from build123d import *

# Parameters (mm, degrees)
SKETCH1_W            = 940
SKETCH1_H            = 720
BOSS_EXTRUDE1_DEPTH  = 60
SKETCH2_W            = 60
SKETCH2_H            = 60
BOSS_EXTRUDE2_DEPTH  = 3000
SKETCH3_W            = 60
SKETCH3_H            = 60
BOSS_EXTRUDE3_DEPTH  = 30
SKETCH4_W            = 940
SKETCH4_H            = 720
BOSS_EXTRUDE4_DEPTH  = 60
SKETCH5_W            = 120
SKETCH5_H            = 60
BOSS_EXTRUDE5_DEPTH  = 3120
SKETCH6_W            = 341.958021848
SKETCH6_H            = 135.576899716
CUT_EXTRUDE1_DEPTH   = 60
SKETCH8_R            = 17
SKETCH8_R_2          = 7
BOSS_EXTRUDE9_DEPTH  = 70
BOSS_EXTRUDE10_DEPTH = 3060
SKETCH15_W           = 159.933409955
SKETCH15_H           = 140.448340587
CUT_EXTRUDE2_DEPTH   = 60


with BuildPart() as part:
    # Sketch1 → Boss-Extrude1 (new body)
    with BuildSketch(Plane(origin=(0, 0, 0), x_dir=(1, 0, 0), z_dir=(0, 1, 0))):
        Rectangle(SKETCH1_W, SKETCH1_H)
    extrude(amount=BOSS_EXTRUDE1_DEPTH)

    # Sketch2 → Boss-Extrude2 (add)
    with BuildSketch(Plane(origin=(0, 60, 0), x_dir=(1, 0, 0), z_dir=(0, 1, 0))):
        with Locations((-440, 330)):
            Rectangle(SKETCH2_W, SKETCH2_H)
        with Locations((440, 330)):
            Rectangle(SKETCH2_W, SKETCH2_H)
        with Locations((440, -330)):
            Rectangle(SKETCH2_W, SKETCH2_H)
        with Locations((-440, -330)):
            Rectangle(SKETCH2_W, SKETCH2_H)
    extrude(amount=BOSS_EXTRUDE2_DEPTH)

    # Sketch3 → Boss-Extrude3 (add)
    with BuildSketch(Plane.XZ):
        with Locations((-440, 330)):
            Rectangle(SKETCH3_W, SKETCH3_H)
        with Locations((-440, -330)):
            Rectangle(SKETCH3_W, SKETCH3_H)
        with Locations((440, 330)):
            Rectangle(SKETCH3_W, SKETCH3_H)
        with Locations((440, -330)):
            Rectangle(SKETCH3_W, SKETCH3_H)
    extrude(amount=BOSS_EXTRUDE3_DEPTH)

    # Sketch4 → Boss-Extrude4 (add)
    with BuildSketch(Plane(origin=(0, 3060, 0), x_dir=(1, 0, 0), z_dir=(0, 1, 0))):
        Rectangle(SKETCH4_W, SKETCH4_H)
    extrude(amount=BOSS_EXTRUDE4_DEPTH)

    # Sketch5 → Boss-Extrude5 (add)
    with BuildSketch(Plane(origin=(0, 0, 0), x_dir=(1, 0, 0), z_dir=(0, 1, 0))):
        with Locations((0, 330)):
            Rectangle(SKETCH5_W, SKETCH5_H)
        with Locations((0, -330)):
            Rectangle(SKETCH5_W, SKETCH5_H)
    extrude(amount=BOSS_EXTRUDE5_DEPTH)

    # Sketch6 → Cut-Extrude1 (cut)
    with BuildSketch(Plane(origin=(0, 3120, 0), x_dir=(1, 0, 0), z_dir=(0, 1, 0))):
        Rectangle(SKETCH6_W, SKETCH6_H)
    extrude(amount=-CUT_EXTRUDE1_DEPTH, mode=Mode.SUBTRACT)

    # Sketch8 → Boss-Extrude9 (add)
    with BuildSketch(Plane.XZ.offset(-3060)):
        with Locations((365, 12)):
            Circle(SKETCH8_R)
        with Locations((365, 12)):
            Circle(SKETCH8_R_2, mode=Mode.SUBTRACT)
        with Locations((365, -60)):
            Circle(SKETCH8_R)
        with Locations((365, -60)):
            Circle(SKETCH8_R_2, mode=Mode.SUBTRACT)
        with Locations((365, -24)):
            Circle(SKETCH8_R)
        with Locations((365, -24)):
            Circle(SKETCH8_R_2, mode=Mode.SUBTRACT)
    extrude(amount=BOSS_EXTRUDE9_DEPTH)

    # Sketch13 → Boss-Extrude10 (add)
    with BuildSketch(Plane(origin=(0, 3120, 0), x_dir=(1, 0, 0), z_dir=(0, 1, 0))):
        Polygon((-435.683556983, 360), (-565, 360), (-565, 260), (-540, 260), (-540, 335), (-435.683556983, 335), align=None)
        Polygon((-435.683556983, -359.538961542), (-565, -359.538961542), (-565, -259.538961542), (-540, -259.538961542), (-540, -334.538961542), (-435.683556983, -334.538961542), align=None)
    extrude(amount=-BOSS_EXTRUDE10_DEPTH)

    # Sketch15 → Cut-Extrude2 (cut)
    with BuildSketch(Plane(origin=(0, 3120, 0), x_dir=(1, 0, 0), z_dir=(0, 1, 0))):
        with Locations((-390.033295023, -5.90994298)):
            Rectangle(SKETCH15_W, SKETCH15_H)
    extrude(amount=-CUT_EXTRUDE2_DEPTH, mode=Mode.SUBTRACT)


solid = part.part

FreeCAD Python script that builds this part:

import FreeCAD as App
import Part
import Sketcher
from FreeCAD import Vector

doc = App.newDocument("Part")
body = doc.addObject("PartDesign::Body", "Body")

sketch1 = doc.addObject("Sketcher::SketchObject", "Sketch")
body.addObject(sketch1)
sketch1.AttachmentSupport = (doc.XZ_Plane, [""])
sketch1.MapMode = "FlatFace"
sketch1.addGeometry([
    Part.LineSegment(Vector(-470, -360, 0), Vector(-470, 360, 0)),
    Part.LineSegment(Vector(-470, 360, 0), Vector(470, 360, 0)),
    Part.LineSegment(Vector(470, 360, 0), Vector(470, -360, 0)),
    Part.LineSegment(Vector(470, -360, 0), Vector(-470, -360, 0)),
], False)
sketch1.addConstraint([
    Sketcher.Constraint("Coincident", 0, 2, 1, 1),
    Sketcher.Constraint("Coincident", 1, 2, 2, 1),
    Sketcher.Constraint("Coincident", 2, 2, 3, 1),
    Sketcher.Constraint("Coincident", 3, 2, 0, 1),
    Sketcher.Constraint("Vertical", 0),
    Sketcher.Constraint("Horizontal", 1),
    Sketcher.Constraint("Vertical", 2),
    Sketcher.Constraint("Horizontal", 3),
    Sketcher.Constraint("Symmetric", 0, 2, 2, 2, -1, 1),
    Sketcher.Constraint("DistanceX", 1, 1, 1, 2, 940.0),
    Sketcher.Constraint("DistanceY", 0, 1, 0, 2, 720.0),
])
pad1 = doc.addObject("PartDesign::Pad", "Pad")
body.addObject(pad1)
pad1.Profile = sketch1
pad1.Length = 60
pad1.Reversed = True

sketch2 = doc.addObject("Sketcher::SketchObject", "Sketch001")
body.addObject(sketch2)
sketch2.AttachmentSupport = (doc.XZ_Plane, [""])
sketch2.MapMode = "FlatFace"
sketch2.AttachmentOffset = App.Placement(Vector(0, 0, -60), App.Rotation())
sketch2.addGeometry([
    Part.LineSegment(Vector(-470, -360, 0), Vector(-470, -300, 0)),
    Part.LineSegment(Vector(-470, -300, 0), Vector(-410, -300, 0)),
    Part.LineSegment(Vector(-410, -300, 0), Vector(-410, -360, 0)),
    Part.LineSegment(Vector(-410, -360, 0), Vector(-470, -360, 0)),
    Part.LineSegment(Vector(410, -360, 0), Vector(410, -300, 0)),
    Part.LineSegment(Vector(410, -300, 0), Vector(470, -300, 0)),
    Part.LineSegment(Vector(470, -300, 0), Vector(470, -360, 0)),
    Part.LineSegment(Vector(470, -360, 0), Vector(410, -360, 0)),
    Part.LineSegment(Vector(410, 300, 0), Vector(410, 360, 0)),
    Part.LineSegment(Vector(410, 360, 0), Vector(470, 360, 0)),
    Part.LineSegment(Vector(470, 360, 0), Vector(470, 300, 0)),
    Part.LineSegment(Vector(470, 300, 0), Vector(410, 300, 0)),
    Part.LineSegment(Vector(-470, 300, 0), Vector(-470, 360, 0)),
    Part.LineSegment(Vector(-470, 360, 0), Vector(-410, 360, 0)),
    Part.LineSegment(Vector(-410, 360, 0), Vector(-410, 300, 0)),
    Part.LineSegment(Vector(-410, 300, 0), Vector(-470, 300, 0)),
], False)
sketch2.addConstraint([
    Sketcher.Constraint("Coincident", 0, 2, 1, 1),
    Sketcher.Constraint("Coincident", 1, 2, 2, 1),
    Sketcher.Constraint("Coincident", 2, 2, 3, 1),
    Sketcher.Constraint("Coincident", 3, 2, 0, 1),
    Sketcher.Constraint("Coincident", 4, 2, 5, 1),
    Sketcher.Constraint("Coincident", 5, 2, 6, 1),
    Sketcher.Constraint("Coincident", 6, 2, 7, 1),
    Sketcher.Constraint("Coincident", 7, 2, 4, 1),
    Sketcher.Constraint("Coincident", 8, 2, 9, 1),
    Sketcher.Constraint("Coincident", 9, 2, 10, 1),
    Sketcher.Constraint("Coincident", 10, 2, 11, 1),
    Sketcher.Constraint("Coincident", 11, 2, 8, 1),
    Sketcher.Constraint("Coincident", 12, 2, 13, 1),
    Sketcher.Constraint("Coincident", 13, 2, 14, 1),
    Sketcher.Constraint("Coincident", 14, 2, 15, 1),
    Sketcher.Constraint("Coincident", 15, 2, 12, 1),
    Sketcher.Constraint("Vertical", 0),
    Sketcher.Constraint("Horizontal", 1),
    Sketcher.Constraint("Vertical", 2),
    Sketcher.Constraint("Horizontal", 3),
    Sketcher.Constraint("Vertical", 4),
    Sketcher.Constraint("Horizontal", 5),
    Sketcher.Constraint("Vertical", 6),
    Sketcher.Constraint("Horizontal", 7),
    Sketcher.Constraint("Vertical", 8),
    Sketcher.Constraint("Horizontal", 9),
    Sketcher.Constraint("Vertical", 10),
    Sketcher.Constraint("Horizontal", 11),
    Sketcher.Constraint("Vertical", 12),
    Sketcher.Constraint("Horizontal", 13),
    Sketcher.Constraint("Vertical", 14),
    Sketcher.Constraint("Horizontal", 15),
    Sketcher.Constraint("Symmetric", 2, 2, 8, 2, -1, 1),
    Sketcher.Constraint("Symmetric", 0, 2, 10, 2, -1, 1),
    Sketcher.Constraint("Symmetric", 6, 2, 12, 2, -1, 1),
    Sketcher.Constraint("Symmetric", 4, 2, 14, 2, -1, 1),
    Sketcher.Constraint("Symmetric", 1, 2, 4, 2, -2),
    Sketcher.Constraint("Symmetric", 3, 2, 6, 2, -2),
    Sketcher.Constraint("Equal", 15, 0),
    Sketcher.Constraint("DistanceX", 1, 1, 1, 2, 60.0),
    Sketcher.Constraint("DistanceX", 0, 2, -1, 1, 470.0),
    Sketcher.Constraint("DistanceY", 0, 2, -1, 1, 300.0),
])
pad2 = doc.addObject("PartDesign::Pad", "Pad001")
body.addObject(pad2)
pad2.Profile = sketch2
pad2.Length = 3000
pad2.Reversed = True

sketch3 = doc.addObject("Sketcher::SketchObject", "Sketch002")
body.addObject(sketch3)
sketch3.AttachmentSupport = (doc.XZ_Plane, [""])
sketch3.MapMode = "FlatFace"
sketch3.addGeometry([
    Part.LineSegment(Vector(-470, 360, 0), Vector(-470, 300, 0)),
    Part.LineSegment(Vector(-470, 300, 0), Vector(-410, 300, 0)),
    Part.LineSegment(Vector(-410, 300, 0), Vector(-410, 360, 0)),
    Part.LineSegment(Vector(-410, 360, 0), Vector(-470, 360, 0)),
    Part.LineSegment(Vector(-470, -300, 0), Vector(-470, -360, 0)),
    Part.LineSegment(Vector(-470, -360, 0), Vector(-410, -360, 0)),
    Part.LineSegment(Vector(-410, -360, 0), Vector(-410, -300, 0)),
    Part.LineSegment(Vector(-410, -300, 0), Vector(-470, -300, 0)),
    Part.LineSegment(Vector(410, 360, 0), Vector(410, 300, 0)),
    Part.LineSegment(Vector(410, 300, 0), Vector(470, 300, 0)),
    Part.LineSegment(Vector(470, 300, 0), Vector(470, 360, 0)),
    Part.LineSegment(Vector(470, 360, 0), Vector(410, 360, 0)),
    Part.LineSegment(Vector(410, -300, 0), Vector(410, -360, 0)),
    Part.LineSegment(Vector(410, -360, 0), Vector(470, -360, 0)),
    Part.LineSegment(Vector(470, -360, 0), Vector(470, -300, 0)),
    Part.LineSegment(Vector(470, -300, 0), Vector(410, -300, 0)),
], False)
sketch3.addConstraint([
    Sketcher.Constraint("Coincident", 0, 2, 1, 1),
    Sketcher.Constraint("Coincident", 1, 2, 2, 1),
    Sketcher.Constraint("Coincident", 2, 2, 3, 1),
    Sketcher.Constraint("Coincident", 3, 2, 0, 1),
    Sketcher.Constraint("Coincident", 4, 2, 5, 1),
    Sketcher.Constraint("Coincident", 5, 2, 6, 1),
    Sketcher.Constraint("Coincident", 6, 2, 7, 1),
    Sketcher.Constraint("Coincident", 7, 2, 4, 1),
    Sketcher.Constraint("Coincident", 8, 2, 9, 1),
    Sketcher.Constraint("Coincident", 9, 2, 10, 1),
    Sketcher.Constraint("Coincident", 10, 2, 11, 1),
    Sketcher.Constraint("Coincident", 11, 2, 8, 1),
    Sketcher.Constraint("Coincident", 12, 2, 13, 1),
    Sketcher.Constraint("Coincident", 13, 2, 14, 1),
    Sketcher.Constraint("Coincident", 14, 2, 15, 1),
    Sketcher.Constraint("Coincident", 15, 2, 12, 1),
    Sketcher.Constraint("Vertical", 0),
    Sketcher.Constraint("Horizontal", 1),
    Sketcher.Constraint("Vertical", 2),
    Sketcher.Constraint("Horizontal", 3),
    Sketcher.Constraint("Vertical", 4),
    Sketcher.Constraint("Horizontal", 5),
    Sketcher.Constraint("Vertical", 6),
    Sketcher.Constraint("Horizontal", 7),
    Sketcher.Constraint("Vertical", 8),
    Sketcher.Constraint("Horizontal", 9),
    Sketcher.Constraint("Vertical", 10),
    Sketcher.Constraint("Horizontal", 11),
    Sketcher.Constraint("Vertical", 12),
    Sketcher.Constraint("Horizontal", 13),
    Sketcher.Constraint("Vertical", 14),
    Sketcher.Constraint("Horizontal", 15),
    Sketcher.Constraint("Symmetric", 6, 2, 8, 2, -1, 1),
    Sketcher.Constraint("Symmetric", 4, 2, 10, 2, -1, 1),
    Sketcher.Constraint("Symmetric", 2, 2, 12, 2, -1, 1),
    Sketcher.Constraint("Symmetric", 0, 2, 14, 2, -1, 1),
    Sketcher.Constraint("Symmetric", 1, 2, 8, 2, -2),
    Sketcher.Constraint("Symmetric", 3, 2, 10, 2, -2),
    Sketcher.Constraint("Equal", 15, 0),
    Sketcher.Constraint("DistanceX", 1, 1, 1, 2, 60.0),
    Sketcher.Constraint("DistanceX", 0, 2, -1, 1, 470.0),
    Sketcher.Constraint("DistanceY", -1, 1, 0, 2, 300.0),
])
pad3 = doc.addObject("PartDesign::Pad", "Pad002")
body.addObject(pad3)
pad3.Profile = sketch3
pad3.Length = 30

sketch4 = doc.addObject("Sketcher::SketchObject", "Sketch003")
body.addObject(sketch4)
sketch4.AttachmentSupport = (doc.XZ_Plane, [""])
sketch4.MapMode = "FlatFace"
sketch4.AttachmentOffset = App.Placement(Vector(0, 0, -3060), App.Rotation())
sketch4.addGeometry([
    Part.LineSegment(Vector(-470, -360, 0), Vector(-470, 360, 0)),
    Part.LineSegment(Vector(-470, 360, 0), Vector(470, 360, 0)),
    Part.LineSegment(Vector(470, 360, 0), Vector(470, -360, 0)),
    Part.LineSegment(Vector(470, -360, 0), Vector(-470, -360, 0)),
], False)
sketch4.addConstraint([
    Sketcher.Constraint("Coincident", 0, 2, 1, 1),
    Sketcher.Constraint("Coincident", 1, 2, 2, 1),
    Sketcher.Constraint("Coincident", 2, 2, 3, 1),
    Sketcher.Constraint("Coincident", 3, 2, 0, 1),
    Sketcher.Constraint("Vertical", 0),
    Sketcher.Constraint("Horizontal", 1),
    Sketcher.Constraint("Vertical", 2),
    Sketcher.Constraint("Horizontal", 3),
    Sketcher.Constraint("Symmetric", 0, 2, 2, 2, -1, 1),
    Sketcher.Constraint("DistanceX", 1, 1, 1, 2, 940.0),
    Sketcher.Constraint("DistanceY", 0, 1, 0, 2, 720.0),
])
pad4 = doc.addObject("PartDesign::Pad", "Pad003")
body.addObject(pad4)
pad4.Profile = sketch4
pad4.Length = 60
pad4.Reversed = True

sketch5 = doc.addObject("Sketcher::SketchObject", "Sketch004")
body.addObject(sketch5)
sketch5.AttachmentSupport = (doc.XZ_Plane, [""])
sketch5.MapMode = "FlatFace"
sketch5.addGeometry([
    Part.LineSegment(Vector(-60, -360, 0), Vector(-60, -300, 0)),
    Part.LineSegment(Vector(-60, -300, 0), Vector(60, -300, 0)),
    Part.LineSegment(Vector(60, -300, 0), Vector(60, -360, 0)),
    Part.LineSegment(Vector(60, -360, 0), Vector(-60, -360, 0)),
    Part.LineSegment(Vector(-60, 300, 0), Vector(-60, 360, 0)),
    Part.LineSegment(Vector(-60, 360, 0), Vector(60, 360, 0)),
    Part.LineSegment(Vector(60, 360, 0), Vector(60, 300, 0)),
    Part.LineSegment(Vector(60, 300, 0), Vector(-60, 300, 0)),
], False)
sketch5.addConstraint([
    Sketcher.Constraint("Coincident", 0, 2, 1, 1),
    Sketcher.Constraint("Coincident", 1, 2, 2, 1),
    Sketcher.Constraint("Coincident", 2, 2, 3, 1),
    Sketcher.Constraint("Coincident", 3, 2, 0, 1),
    Sketcher.Constraint("Coincident", 4, 2, 5, 1),
    Sketcher.Constraint("Coincident", 5, 2, 6, 1),
    Sketcher.Constraint("Coincident", 6, 2, 7, 1),
    Sketcher.Constraint("Coincident", 7, 2, 4, 1),
    Sketcher.Constraint("Vertical", 0),
    Sketcher.Constraint("Horizontal", 1),
    Sketcher.Constraint("Vertical", 2),
    Sketcher.Constraint("Horizontal", 3),
    Sketcher.Constraint("Vertical", 4),
    Sketcher.Constraint("Horizontal", 5),
    Sketcher.Constraint("Vertical", 6),
    Sketcher.Constraint("Horizontal", 7),
    Sketcher.Constraint("Symmetric", 2, 2, 4, 2, -1, 1),
    Sketcher.Constraint("Symmetric", 0, 2, 6, 2, -1, 1),
    Sketcher.Constraint("Vertical", 3, 2, 4, 2),
    Sketcher.Constraint("DistanceX", 1, 1, 1, 2, 120.0),
    Sketcher.Constraint("DistanceY", 0, 1, 0, 2, 60.0),
    Sketcher.Constraint("DistanceY", 0, 2, -1, 1, 300.0),
])
pad5 = doc.addObject("PartDesign::Pad", "Pad004")
body.addObject(pad5)
pad5.Profile = sketch5
pad5.Length = 3120
pad5.Reversed = True

sketch6 = doc.addObject("Sketcher::SketchObject", "Sketch005")
body.addObject(sketch6)
sketch6.AttachmentSupport = (doc.XZ_Plane, [""])
sketch6.MapMode = "FlatFace"
sketch6.AttachmentOffset = App.Placement(Vector(0, 0, -3120), App.Rotation())
sketch6.addGeometry([
    Part.LineSegment(Vector(-170.979011, -67.78845, 0), Vector(-170.979011, 67.78845, 0)),
    Part.LineSegment(Vector(-170.979011, 67.78845, 0), Vector(170.979011, 67.78845, 0)),
    Part.LineSegment(Vector(170.979011, 67.78845, 0), Vector(170.979011, -67.78845, 0)),
    Part.LineSegment(Vector(170.979011, -67.78845, 0), Vector(-170.979011, -67.78845, 0)),
], False)
sketch6.addConstraint([
    Sketcher.Constraint("Coincident", 0, 2, 1, 1),
    Sketcher.Constraint("Coincident", 1, 2, 2, 1),
    Sketcher.Constraint("Coincident", 2, 2, 3, 1),
    Sketcher.Constraint("Coincident", 3, 2, 0, 1),
    Sketcher.Constraint("Vertical", 0),
    Sketcher.Constraint("Horizontal", 1),
    Sketcher.Constraint("Vertical", 2),
    Sketcher.Constraint("Horizontal", 3),
    Sketcher.Constraint("Symmetric", 0, 2, 2, 2, -1, 1),
    Sketcher.Constraint("DistanceY", 0, 1, 0, 2, 135.5769),
    Sketcher.Constraint("DistanceX", 1, 1, 1, 2, 341.958022),
])
pocket1 = doc.addObject("PartDesign::Pocket", "Pocket")
body.addObject(pocket1)
pocket1.Profile = sketch6
pocket1.Length = 60
pocket1.Reversed = True

sketch7 = doc.addObject("Sketcher::SketchObject", "Sketch006")
body.addObject(sketch7)
sketch7.AttachmentSupport = (doc.XZ_Plane, [""])
sketch7.MapMode = "FlatFace"
sketch7.AttachmentOffset = App.Placement(Vector(0, 0, -3060), App.Rotation())
sketch7.addGeometry([
    Part.Circle(Vector(365, 12, 0), Vector(0, 0, 1), 17),
    Part.Circle(Vector(365, 12, 0), Vector(0, 0, 1), 7),
    Part.Circle(Vector(365, -60, 0), Vector(0, 0, 1), 17),
    Part.Circle(Vector(365, -60, 0), Vector(0, 0, 1), 7),
    Part.Circle(Vector(365, -24, 0), Vector(0, 0, 1), 17),
    Part.Circle(Vector(365, -24, 0), Vector(0, 0, 1), 7),
], False)
sketch7.addConstraint([
    Sketcher.Constraint("Coincident", 1, 3, 0, 3),
    Sketcher.Constraint("Coincident", 3, 3, 2, 3),
    Sketcher.Constraint("Coincident", 5, 3, 4, 3),
    Sketcher.Constraint("Equal", 0, 2),
    Sketcher.Constraint("Equal", 1, 3),
    Sketcher.Constraint("Equal", 2, 4),
    Sketcher.Constraint("Equal", 3, 5),
    Sketcher.Constraint("Vertical", 1, 3, 2, 3),
    Sketcher.Constraint("Vertical", 3, 3, 4, 3),
    Sketcher.Constraint("Diameter", 0, 34.0),
    Sketcher.Constraint("Diameter", 1, 14.0),
    Sketcher.Constraint("DistanceX", -1, 1, 0, 3, 365.0),
    Sketcher.Constraint("DistanceY", -1, 1, 0, 3, 12.0),
    Sketcher.Constraint("DistanceY", 2, 3, -1, 1, 60.0),
    Sketcher.Constraint("DistanceY", 4, 3, -1, 1, 24.0),
])
pad6 = doc.addObject("PartDesign::Pad", "Pad005")
body.addObject(pad6)
pad6.Profile = sketch7
pad6.Length = 70

sketch8 = doc.addObject("Sketcher::SketchObject", "Sketch007")
body.addObject(sketch8)
sketch8.AttachmentSupport = (doc.XZ_Plane, [""])
sketch8.MapMode = "FlatFace"
sketch8.AttachmentOffset = App.Placement(Vector(0, 0, -3120), App.Rotation())
sketch8.addGeometry([
    Part.LineSegment(Vector(-435.683557, -360, 0), Vector(-565, -360, 0)),
    Part.LineSegment(Vector(-565, -360, 0), Vector(-565, -260, 0)),
    Part.LineSegment(Vector(-565, -260, 0), Vector(-540, -260, 0)),
    Part.LineSegment(Vector(-540, -260, 0), Vector(-540, -335, 0)),
    Part.LineSegment(Vector(-540, -335, 0), Vector(-435.683557, -335, 0)),
    Part.LineSegment(Vector(-435.683557, -335, 0), Vector(-435.683557, -360, 0)),
    Part.LineSegment(Vector(-565, 359.538962, 0), Vector(-435.683557, 359.538962, 0)),
    Part.LineSegment(Vector(-435.683557, 359.538962, 0), Vector(-435.683557, 334.538962, 0)),
    Part.LineSegment(Vector(-435.683557, 334.538962, 0), Vector(-540, 334.538962, 0)),
    Part.LineSegment(Vector(-540, 334.538962, 0), Vector(-540, 259.538962, 0)),
    Part.LineSegment(Vector(-540, 259.538962, 0), Vector(-565, 259.538962, 0)),
    Part.LineSegment(Vector(-565, 259.538962, 0), Vector(-565, 359.538962, 0)),
], False)
sketch8.addConstraint([
    Sketcher.Constraint("Coincident", 0, 2, 1, 1),
    Sketcher.Constraint("Coincident", 1, 2, 2, 1),
    Sketcher.Constraint("Coincident", 2, 2, 3, 1),
    Sketcher.Constraint("Coincident", 3, 2, 4, 1),
    Sketcher.Constraint("Coincident", 4, 2, 5, 1),
    Sketcher.Constraint("Coincident", 5, 2, 0, 1),
    Sketcher.Constraint("Coincident", 6, 2, 7, 1),
    Sketcher.Constraint("Coincident", 7, 2, 8, 1),
    Sketcher.Constraint("Coincident", 8, 2, 9, 1),
    Sketcher.Constraint("Coincident", 9, 2, 10, 1),
    Sketcher.Constraint("Coincident", 10, 2, 11, 1),
    Sketcher.Constraint("Coincident", 11, 2, 6, 1),
    Sketcher.Constraint("Horizontal", 0),
    Sketcher.Constraint("Vertical", 1),
    Sketcher.Constraint("Horizontal", 2),
    Sketcher.Constraint("Vertical", 3),
    Sketcher.Constraint("Horizontal", 4),
    Sketcher.Constraint("Vertical", 5),
    Sketcher.Constraint("Horizontal", 6),
    Sketcher.Constraint("Vertical", 7),
    Sketcher.Constraint("Horizontal", 8),
    Sketcher.Constraint("Vertical", 9),
    Sketcher.Constraint("Horizontal", 10),
    Sketcher.Constraint("Vertical", 11),
    Sketcher.Constraint("Vertical", 5, 2, 6, 2),
    Sketcher.Constraint("Vertical", 3, 2, 8, 2),
    Sketcher.Constraint("Vertical", 1, 2, 10, 2),
    Sketcher.Constraint("Equal", 10, 5),
    Sketcher.Constraint("Equal", 5, 7),
    Sketcher.Constraint("Equal", 3, 9),
    Sketcher.Constraint("DistanceX", 2, 1, 2, 2, 25.0),
    Sketcher.Constraint("DistanceY", 1, 1, 1, 2, 100.0),
    Sketcher.Constraint("DistanceX", 0, 2, -1, 1, 565.0),
    Sketcher.Constraint("DistanceY", 0, 2, -1, 1, 360.0),
    Sketcher.Constraint("DistanceX", 0, 2, 0, 1, 129.316443),
    Sketcher.Constraint("DistanceY", -1, 1, 6, 2, 359.538962),
])
pad7 = doc.addObject("PartDesign::Pad", "Pad006")
body.addObject(pad7)
pad7.Profile = sketch8
pad7.Length = 3060

sketch9 = doc.addObject("Sketcher::SketchObject", "Sketch008")
body.addObject(sketch9)
sketch9.AttachmentSupport = (doc.XZ_Plane, [""])
sketch9.MapMode = "FlatFace"
sketch9.AttachmentOffset = App.Placement(Vector(0, 0, -3120), App.Rotation())
sketch9.addGeometry([
    Part.LineSegment(Vector(-470, -64.314227, 0), Vector(-470, 76.134113, 0)),
    Part.LineSegment(Vector(-470, 76.134113, 0), Vector(-310.06659, 76.134113, 0)),
    Part.LineSegment(Vector(-310.06659, 76.134113, 0), Vector(-310.06659, -64.314227, 0)),
    Part.LineSegment(Vector(-310.06659, -64.314227, 0), Vector(-470, -64.314227, 0)),
], False)
sketch9.addConstraint([
    Sketcher.Constraint("Coincident", 0, 2, 1, 1),
    Sketcher.Constraint("Coincident", 1, 2, 2, 1),
    Sketcher.Constraint("Coincident", 2, 2, 3, 1),
    Sketcher.Constraint("Coincident", 3, 2, 0, 1),
    Sketcher.Constraint("Vertical", 0),
    Sketcher.Constraint("Horizontal", 1),
    Sketcher.Constraint("Vertical", 2),
    Sketcher.Constraint("Horizontal", 3),
    Sketcher.Constraint("DistanceX", 0, 2, -1, 1, 470.0),
    Sketcher.Constraint("DistanceX", 1, 1, 1, 2, 159.93341),
    Sketcher.Constraint("DistanceY", 0, 1, 0, 2, 140.448341),
    Sketcher.Constraint("DistanceY", -1, 1, 0, 2, 76.134113),
])
pocket2 = doc.addObject("PartDesign::Pocket", "Pocket001")
body.addObject(pocket2)
pocket2.Profile = sketch9
pocket2.Length = 60
pocket2.Reversed = True

doc.recompute()
